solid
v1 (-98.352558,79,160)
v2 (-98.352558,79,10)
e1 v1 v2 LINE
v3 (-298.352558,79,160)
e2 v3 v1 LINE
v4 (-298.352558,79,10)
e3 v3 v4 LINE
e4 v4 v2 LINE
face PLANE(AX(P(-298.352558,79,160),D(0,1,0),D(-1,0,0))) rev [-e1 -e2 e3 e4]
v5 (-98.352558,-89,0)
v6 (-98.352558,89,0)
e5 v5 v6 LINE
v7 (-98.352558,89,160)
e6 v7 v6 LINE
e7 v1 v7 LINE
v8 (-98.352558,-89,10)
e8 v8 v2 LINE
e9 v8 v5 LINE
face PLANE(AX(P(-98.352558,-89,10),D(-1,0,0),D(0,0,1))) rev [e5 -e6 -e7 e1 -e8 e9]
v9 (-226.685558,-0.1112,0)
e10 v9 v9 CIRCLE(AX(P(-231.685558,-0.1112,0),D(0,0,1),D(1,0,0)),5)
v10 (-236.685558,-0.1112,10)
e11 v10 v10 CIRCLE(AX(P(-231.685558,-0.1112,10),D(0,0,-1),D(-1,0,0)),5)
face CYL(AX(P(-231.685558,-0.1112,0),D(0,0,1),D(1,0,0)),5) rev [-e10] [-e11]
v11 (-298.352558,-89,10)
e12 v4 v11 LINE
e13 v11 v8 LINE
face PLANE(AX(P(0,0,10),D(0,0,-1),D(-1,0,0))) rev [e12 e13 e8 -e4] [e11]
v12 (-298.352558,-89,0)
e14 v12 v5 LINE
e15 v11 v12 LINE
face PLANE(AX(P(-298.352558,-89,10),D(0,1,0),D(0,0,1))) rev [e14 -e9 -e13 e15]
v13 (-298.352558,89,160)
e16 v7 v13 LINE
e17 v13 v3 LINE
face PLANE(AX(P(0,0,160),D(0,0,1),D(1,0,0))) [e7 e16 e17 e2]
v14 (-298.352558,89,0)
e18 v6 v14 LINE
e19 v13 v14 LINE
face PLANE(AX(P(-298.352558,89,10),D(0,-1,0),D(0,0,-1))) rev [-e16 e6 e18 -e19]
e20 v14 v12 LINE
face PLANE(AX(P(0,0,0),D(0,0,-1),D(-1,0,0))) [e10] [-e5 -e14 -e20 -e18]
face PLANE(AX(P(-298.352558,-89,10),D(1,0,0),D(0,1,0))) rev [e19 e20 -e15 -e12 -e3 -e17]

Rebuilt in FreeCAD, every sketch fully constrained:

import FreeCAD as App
import Part
import Sketcher

V = App.Vector


def add_polygon(sketch, points):
    """Adds a closed chain of lines whose ends are joined by coincident constraints."""
    first, n = sketch.GeometryCount, len(points)
    for a, b in zip(points, points[1:] + points[:1]):
        sketch.addGeometry(Part.LineSegment(App.Vector(*a, 0), App.Vector(*b, 0)), False)
    for i in range(n):
        sketch.addConstraint(Sketcher.Constraint("Coincident", first + i, 2, first + (i + 1) % n, 1))

doc = App.newDocument("Part")
body = doc.addObject("PartDesign::Body", "Body")

sketch1 = body.newObject("Sketcher::SketchObject", "Sketch")
sketch1.AttachmentSupport = (doc.getObject("XY_Plane"), [""])
sketch1.MapMode = "FlatFace"
add_polygon(sketch1, [(-298, 89), (-298, -89), (-98, -89), (-98, 89)])
sketch1.addConstraint(Sketcher.Constraint("Vertical", 0))
sketch1.addConstraint(Sketcher.Constraint("Horizontal", 1))
sketch1.addConstraint(Sketcher.Constraint("Vertical", 2))
sketch1.addConstraint(Sketcher.Constraint("Horizontal", 3))
sketch1.addConstraint(Sketcher.Constraint("DistanceX", 1, 1, 1, 2, 200.0))
sketch1.addConstraint(Sketcher.Constraint("DistanceY", 0, 2, 0, 1, 178.0))
sketch1.addConstraint(Sketcher.Constraint("DistanceY", 0, 2, -1, 1, 89.0))
sketch1.addConstraint(Sketcher.Constraint("DistanceX", 0, 2, -1, 1, 298.352558))
pad1 = body.newObject("PartDesign::Pad", "Pad")
pad1.Profile = sketch1
pad1.Length = 10

sketch2 = body.newObject("Sketcher::SketchObject", "Sketch001")
sketch2.AttachmentSupport = (doc.getObject("XY_Plane"), [""])
sketch2.MapMode = "FlatFace"
sketch2.AttachmentOffset = App.Placement(V(0, 0, 10), App.Rotation())
add_polygon(sketch2, [(-298, 89), (-298, 79), (-98, 79), (-98, 89)])
sketch2.addConstraint(Sketcher.Constraint("Vertical", 0))
sketch2.addConstraint(Sketcher.Constraint("Horizontal", 1))
sketch2.addConstraint(Sketcher.Constraint("Vertical", 2))
sketch2.addConstraint(Sketcher.Constraint("Horizontal", 3))
sketch2.addConstraint(Sketcher.Constraint("DistanceX", 1, 1, 1, 2, 200.0))
sketch2.addConstraint(Sketcher.Constraint("DistanceY", 0, 2, 0, 1, 10.0))
sketch2.addConstraint(Sketcher.Constraint("DistanceY", -1, 1, 0, 2, 79.0))
sketch2.addConstraint(Sketcher.Constraint("DistanceX", 0, 2, -1, 1, 298.352558))
pad2 = body.newObject("PartDesign::Pad", "Pad001")
pad2.Profile = sketch2
pad2.Length = 150

sketch3 = body.newObject("Sketcher::SketchObject", "Sketch002")
sketch3.AttachmentSupport = (doc.getObject("XY_Plane"), [""])
sketch3.MapMode = "FlatFace"
sketch3.AttachmentOffset = App.Placement(V(0, 0, 10), App.Rotation())
sketch3.addGeometry(Part.Circle(V(-232, 0, 0), V(0, 0, 1), 5), False)
sketch3.addConstraint(Sketcher.Constraint("Diameter", 0, 10.0))
sketch3.addConstraint(Sketcher.Constraint("DistanceY", 0, 3, -1, 1, 0.1112))
sketch3.addConstraint(Sketcher.Constraint("DistanceX", 0, 3, -1, 1, 231.685558))
pocket1 = body.newObject("PartDesign::Pocket", "Pocket")
pocket1.Profile = sketch3
pocket1.Type = "ThroughAll"
pocket1.Midplane = True

doc.recompute()
